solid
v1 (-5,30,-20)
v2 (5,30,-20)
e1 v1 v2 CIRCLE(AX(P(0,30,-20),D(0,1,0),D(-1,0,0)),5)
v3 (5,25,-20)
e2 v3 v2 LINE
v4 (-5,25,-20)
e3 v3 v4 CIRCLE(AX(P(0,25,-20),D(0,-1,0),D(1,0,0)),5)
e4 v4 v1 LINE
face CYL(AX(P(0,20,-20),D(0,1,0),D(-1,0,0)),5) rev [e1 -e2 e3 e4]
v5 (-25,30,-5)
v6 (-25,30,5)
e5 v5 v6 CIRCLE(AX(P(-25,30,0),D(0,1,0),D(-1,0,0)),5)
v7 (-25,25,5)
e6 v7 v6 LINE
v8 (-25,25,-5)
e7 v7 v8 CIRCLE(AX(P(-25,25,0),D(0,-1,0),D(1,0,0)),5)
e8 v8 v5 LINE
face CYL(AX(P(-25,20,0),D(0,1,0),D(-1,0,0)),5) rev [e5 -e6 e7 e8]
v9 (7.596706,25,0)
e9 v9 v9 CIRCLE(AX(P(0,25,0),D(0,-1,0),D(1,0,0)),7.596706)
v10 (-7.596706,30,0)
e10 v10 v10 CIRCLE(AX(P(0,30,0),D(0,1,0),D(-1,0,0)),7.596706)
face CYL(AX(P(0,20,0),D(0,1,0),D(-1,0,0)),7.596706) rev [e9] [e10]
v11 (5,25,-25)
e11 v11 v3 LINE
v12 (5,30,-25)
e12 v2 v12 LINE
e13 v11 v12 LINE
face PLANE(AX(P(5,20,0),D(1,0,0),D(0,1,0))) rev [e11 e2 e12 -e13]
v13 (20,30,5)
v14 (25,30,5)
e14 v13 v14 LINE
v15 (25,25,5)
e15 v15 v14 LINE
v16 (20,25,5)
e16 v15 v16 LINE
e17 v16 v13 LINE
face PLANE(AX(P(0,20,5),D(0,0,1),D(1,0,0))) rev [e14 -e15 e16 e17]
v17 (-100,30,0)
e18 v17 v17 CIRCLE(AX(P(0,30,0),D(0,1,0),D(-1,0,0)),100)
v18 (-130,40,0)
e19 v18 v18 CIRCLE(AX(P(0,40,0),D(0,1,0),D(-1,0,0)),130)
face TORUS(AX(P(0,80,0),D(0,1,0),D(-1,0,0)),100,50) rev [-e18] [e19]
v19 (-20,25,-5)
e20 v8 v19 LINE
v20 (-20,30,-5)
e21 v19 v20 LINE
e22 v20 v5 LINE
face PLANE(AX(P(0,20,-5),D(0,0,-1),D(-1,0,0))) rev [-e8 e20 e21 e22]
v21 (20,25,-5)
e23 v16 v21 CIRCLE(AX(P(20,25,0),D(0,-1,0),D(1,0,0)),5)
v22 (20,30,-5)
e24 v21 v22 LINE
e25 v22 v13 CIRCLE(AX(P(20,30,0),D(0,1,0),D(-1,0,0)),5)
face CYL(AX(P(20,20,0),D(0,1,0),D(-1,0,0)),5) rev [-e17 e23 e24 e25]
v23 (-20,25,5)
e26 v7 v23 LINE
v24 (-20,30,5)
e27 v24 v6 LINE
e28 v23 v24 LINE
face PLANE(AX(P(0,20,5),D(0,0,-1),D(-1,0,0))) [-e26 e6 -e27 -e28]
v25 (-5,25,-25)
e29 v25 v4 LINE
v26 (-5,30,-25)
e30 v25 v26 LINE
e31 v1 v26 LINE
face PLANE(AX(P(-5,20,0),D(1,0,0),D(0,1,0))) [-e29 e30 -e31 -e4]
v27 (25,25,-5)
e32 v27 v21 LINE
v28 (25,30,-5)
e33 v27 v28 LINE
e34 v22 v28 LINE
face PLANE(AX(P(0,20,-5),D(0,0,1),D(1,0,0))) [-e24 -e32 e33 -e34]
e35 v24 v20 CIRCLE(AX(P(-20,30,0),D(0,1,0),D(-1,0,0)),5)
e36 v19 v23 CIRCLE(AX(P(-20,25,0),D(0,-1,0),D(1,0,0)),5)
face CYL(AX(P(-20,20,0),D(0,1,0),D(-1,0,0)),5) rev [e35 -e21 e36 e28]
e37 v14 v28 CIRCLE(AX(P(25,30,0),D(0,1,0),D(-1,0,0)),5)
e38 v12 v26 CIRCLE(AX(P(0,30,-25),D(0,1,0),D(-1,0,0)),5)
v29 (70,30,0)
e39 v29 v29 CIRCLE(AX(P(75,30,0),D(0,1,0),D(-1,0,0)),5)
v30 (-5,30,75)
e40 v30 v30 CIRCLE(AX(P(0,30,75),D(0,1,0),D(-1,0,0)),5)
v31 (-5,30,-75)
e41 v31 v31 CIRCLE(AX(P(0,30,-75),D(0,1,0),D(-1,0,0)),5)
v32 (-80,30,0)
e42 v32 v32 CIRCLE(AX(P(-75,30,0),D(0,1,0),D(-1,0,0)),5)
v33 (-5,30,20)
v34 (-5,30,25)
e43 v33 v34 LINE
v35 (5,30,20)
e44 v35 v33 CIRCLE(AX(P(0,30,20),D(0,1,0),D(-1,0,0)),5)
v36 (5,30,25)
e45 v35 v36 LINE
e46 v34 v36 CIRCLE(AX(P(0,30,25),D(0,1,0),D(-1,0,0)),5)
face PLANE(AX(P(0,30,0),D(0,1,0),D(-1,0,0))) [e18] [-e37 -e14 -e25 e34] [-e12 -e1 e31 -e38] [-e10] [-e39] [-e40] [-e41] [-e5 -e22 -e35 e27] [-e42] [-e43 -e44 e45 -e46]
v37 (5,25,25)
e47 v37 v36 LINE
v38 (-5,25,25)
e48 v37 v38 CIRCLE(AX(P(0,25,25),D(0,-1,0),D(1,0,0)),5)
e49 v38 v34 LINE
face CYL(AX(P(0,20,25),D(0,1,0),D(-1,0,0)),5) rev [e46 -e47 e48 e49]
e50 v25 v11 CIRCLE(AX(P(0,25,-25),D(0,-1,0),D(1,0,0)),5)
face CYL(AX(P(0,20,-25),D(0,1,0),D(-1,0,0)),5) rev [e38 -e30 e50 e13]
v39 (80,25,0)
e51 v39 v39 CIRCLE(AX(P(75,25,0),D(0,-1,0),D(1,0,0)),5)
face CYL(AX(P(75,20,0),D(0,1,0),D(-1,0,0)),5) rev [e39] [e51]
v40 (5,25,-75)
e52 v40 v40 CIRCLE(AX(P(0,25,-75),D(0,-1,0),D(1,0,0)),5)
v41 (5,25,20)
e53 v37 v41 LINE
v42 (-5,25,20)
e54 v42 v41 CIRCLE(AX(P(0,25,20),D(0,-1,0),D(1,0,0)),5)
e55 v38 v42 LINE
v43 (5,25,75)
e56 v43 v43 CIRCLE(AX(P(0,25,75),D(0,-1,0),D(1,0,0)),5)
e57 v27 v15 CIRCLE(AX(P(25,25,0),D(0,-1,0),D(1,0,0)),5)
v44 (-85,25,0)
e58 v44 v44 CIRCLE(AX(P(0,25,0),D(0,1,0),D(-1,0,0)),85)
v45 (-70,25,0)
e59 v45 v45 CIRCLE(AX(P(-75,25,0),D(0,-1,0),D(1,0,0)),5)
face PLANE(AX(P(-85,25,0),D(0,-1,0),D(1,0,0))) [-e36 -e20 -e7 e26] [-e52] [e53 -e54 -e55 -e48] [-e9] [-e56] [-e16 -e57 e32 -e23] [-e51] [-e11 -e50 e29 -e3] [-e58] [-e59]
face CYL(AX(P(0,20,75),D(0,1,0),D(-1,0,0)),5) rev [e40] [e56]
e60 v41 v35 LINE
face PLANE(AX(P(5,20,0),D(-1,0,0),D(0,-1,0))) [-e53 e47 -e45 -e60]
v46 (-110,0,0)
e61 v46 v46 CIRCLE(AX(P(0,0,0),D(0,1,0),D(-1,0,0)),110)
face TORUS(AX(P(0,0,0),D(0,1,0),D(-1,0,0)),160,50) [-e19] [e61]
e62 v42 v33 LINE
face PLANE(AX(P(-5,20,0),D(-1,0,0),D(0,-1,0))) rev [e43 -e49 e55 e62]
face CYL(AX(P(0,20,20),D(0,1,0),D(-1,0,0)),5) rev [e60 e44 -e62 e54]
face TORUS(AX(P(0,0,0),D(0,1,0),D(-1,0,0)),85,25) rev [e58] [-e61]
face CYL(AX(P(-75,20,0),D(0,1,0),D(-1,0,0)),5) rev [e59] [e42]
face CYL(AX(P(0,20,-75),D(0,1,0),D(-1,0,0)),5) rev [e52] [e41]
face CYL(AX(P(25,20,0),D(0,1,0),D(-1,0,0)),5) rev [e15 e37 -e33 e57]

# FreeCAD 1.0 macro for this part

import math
import FreeCAD as App
import Part
import Sketcher
from FreeCAD import Vector
Q = App.Units.Quantity

doc = App.newDocument("Part")
body = doc.addObject("PartDesign::Body", "Body")

# Sketch on XY plane
sketch1 = body.newObject("Sketcher::SketchObject", "Sketch")
sketch1.AttachmentSupport = (doc.getObject("XY_Plane"), [""])
sketch1.MapMode = "FlatFace"
sketch1.addGeometry([
    Part.LineSegment(Vector(-85, 25, 0), Vector(0, 25, 0)),  # 0
    Part.LineSegment(Vector(0, 25, 0), Vector(0, 30, 0)),  # 1
    Part.LineSegment(Vector(0, 30, 0), Vector(-100, 30, 0)),  # 2
    Part.ArcOfCircle(Part.Circle(Vector(-100, 80, 0), Vector(0, 0, 1), 50), math.radians(-127), math.radians(-90)),  # 3
    Part.ArcOfCircle(Part.Circle(Vector(-160, 0, 0), Vector(0, 0, 1), 50), math.radians(53), math.radians(360)),  # 4
    Part.ArcOfCircle(Part.Circle(Vector(-85, 0, 0), Vector(0, 0, 1), 25), math.radians(90), math.radians(180)),  # 5
], False)
sketch1.addConstraint([
    Sketcher.Constraint("Coincident", 0, 2, 1, 1),
    Sketcher.Constraint("Coincident", 1, 2, 2, 1),
    Sketcher.Constraint("Tangent", 2, 2, 3, 2),
    Sketcher.Constraint("Tangent", 3, 1, 4, 1),
    Sketcher.Constraint("Tangent", 4, 2, 5, 2),
    Sketcher.Constraint("Tangent", 5, 1, 0, 1),
    Sketcher.Constraint("Horizontal", 0),
    Sketcher.Constraint("Vertical", 1),
    Sketcher.Constraint("Horizontal", 2),
    Sketcher.Constraint("Equal", 3, 4),
    Sketcher.Constraint("PointOnObject", 4, 3, -1),
    Sketcher.Constraint("PointOnObject", 5, 3, -1),
    Sketcher.Constraint("PointOnObject", 0, 2, -2),
    Sketcher.Constraint("Radius", 3, Q("50 mm")),
    Sketcher.Constraint("Radius", 5, Q("25 mm")),
    Sketcher.Constraint("DistanceX", 0, 1, 0, 2, Q("85 mm")),
    Sketcher.Constraint("DistanceX", 2, 2, 2, 1, Q("100 mm")),
])
revolution = body.newObject("PartDesign::Revolution", "Revolution")
revolution.Profile = sketch1
revolution.ReferenceAxis = (sketch1, ["V_Axis"])
revolution.Angle = 360

# Sketch on XZ plane
sketch2 = body.newObject("Sketcher::SketchObject", "Sketch001")
sketch2.AttachmentSupport = (doc.getObject("XZ_Plane"), [""])
sketch2.MapMode = "FlatFace"
sketch2.AttachmentOffset = App.Placement(Vector(0, 0, -30), App.Rotation())
sketch2.addGeometry([
    Part.Circle(Vector(0, -75, 0), Vector(0, 0, 1), 5),  # 0
    Part.Circle(Vector(0, 0, 0), Vector(0, 0, 1), 8),  # 1
    Part.Circle(Vector(75, 0, 0), Vector(0, 0, 1), 5),  # 2
    Part.Circle(Vector(0, 75, 0), Vector(0, 0, 1), 5),  # 3
    Part.Circle(Vector(-75, 0, 0), Vector(0, 0, 1), 5),  # 4
    Part.LineSegment(Vector(-5, -25, 0), Vector(-5, -20, 0)),  # 5
    Part.ArcOfCircle(Part.Circle(Vector(0, -20, 0), Vector(0, 0, 1), 5), math.radians(0), math.radians(180)),  # 6
    Part.LineSegment(Vector(5, -20, 0), Vector(5, -25, 0)),  # 7
    Part.ArcOfCircle(Part.Circle(Vector(0, -25, 0), Vector(0, 0, 1), 5), math.radians(180), math.radians(360)),  # 8
    Part.LineSegment(Vector(25, -5, 0), Vector(20, -5, 0)),  # 9
    Part.ArcOfCircle(Part.Circle(Vector(20, 0, 0), Vector(0, 0, 1), 5), math.radians(90), math.radians(270)),  # 10
    Part.LineSegment(Vector(20, 5, 0), Vector(25, 5, 0)),  # 11
    Part.ArcOfCircle(Part.Circle(Vector(25, 0, 0), Vector(0, 0, 1), 5), math.radians(-90), math.radians(90)),  # 12
    Part.LineSegment(Vector(5, 25, 0), Vector(5, 20, 0)),  # 13
    Part.ArcOfCircle(Part.Circle(Vector(0, 20, 0), Vector(0, 0, 1), 5), math.radians(180), math.radians(360)),  # 14
    Part.LineSegment(Vector(-5, 20, 0), Vector(-5, 25, 0)),  # 15
    Part.ArcOfCircle(Part.Circle(Vector(0, 25, 0), Vector(0, 0, 1), 5), math.radians(0), math.radians(180)),  # 16
    Part.LineSegment(Vector(-25, 5, 0), Vector(-20, 5, 0)),  # 17
    Part.ArcOfCircle(Part.Circle(Vector(-20, 0, 0), Vector(0, 0, 1), 5), math.radians(-90), math.radians(90)),  # 18
    Part.LineSegment(Vector(-20, -5, 0), Vector(-25, -5, 0)),  # 19
    Part.ArcOfCircle(Part.Circle(Vector(-25, 0, 0), Vector(0, 0, 1), 5), math.radians(90), math.radians(270)),  # 20
], False)
sketch2.addConstraint([
    Sketcher.Constraint("Tangent", 5, 2, 6, 2),
    Sketcher.Constraint("Tangent", 6, 1, 7, 1),
    Sketcher.Constraint("Tangent", 7, 2, 8, 2),
    Sketcher.Constraint("Tangent", 8, 1, 5, 1),
    Sketcher.Constraint("Tangent", 9, 2, 10, 2),
    Sketcher.Constraint("Tangent", 10, 1, 11, 1),
    Sketcher.Constraint("Tangent", 11, 2, 12, 2),
    Sketcher.Constraint("Tangent", 12, 1, 9, 1),
    Sketcher.Constraint("Tangent", 13, 2, 14, 2),
    Sketcher.Constraint("Tangent", 14, 1, 15, 1),
    Sketcher.Constraint("Tangent", 15, 2, 16, 2),
    Sketcher.Constraint("Tangent", 16, 1, 13, 1),
    Sketcher.Constraint("Tangent", 17, 2, 18, 2),
    Sketcher.Constraint("Tangent", 18, 1, 19, 1),
    Sketcher.Constraint("Tangent", 19, 2, 20, 2),
    Sketcher.Constraint("Tangent", 20, 1, 17, 1),
    Sketcher.Constraint("Vertical", 5),
    Sketcher.Constraint("Vertical", 7),
    Sketcher.Constraint("Horizontal", 9),
    Sketcher.Constraint("Horizontal", 11),
    Sketcher.Constraint("Vertical", 13),
    Sketcher.Constraint("Vertical", 15),
    Sketcher.Constraint("Horizontal", 17),
    Sketcher.Constraint("Horizontal", 19),
    Sketcher.Constraint("Coincident", 1, 3, -1, 1),
    Sketcher.Constraint("Equal", 0, 2),
    Sketcher.Constraint("Equal", 2, 3),
    Sketcher.Constraint("Equal", 3, 4),
    Sketcher.Constraint("Equal", 4, 6),
    Sketcher.Constraint("Equal", 8, 10),
    Sketcher.Constraint("Equal", 12, 14),
    Sketcher.Constraint("Equal", 16, 18),
    Sketcher.Constraint("Symmetric", 0, 3, 3, 3, -1, 1),
    Sketcher.Constraint("Symmetric", 2, 3, 4, 3, -1, 1),
    Sketcher.Constraint("Symmetric", 6, 3, 14, 3, -1, 1),
    Sketcher.Constraint("Symmetric", 10, 3, 18, 3, -1, 1),
    Sketcher.Constraint("Symmetric", 12, 3, 20, 3, -2),
    Sketcher.Constraint("Symmetric", 8, 3, 16, 3, -1),
    Sketcher.Constraint("PointOnObject", 0, 3, -2),
    Sketcher.Constraint("PointOnObject", 2, 3, -1),
    Sketcher.Constraint("Equal", 19, 5),
    Sketcher.Constraint("Diameter", 0, Q("10 mm")),
    Sketcher.Constraint("DistanceX", 9, 2, 9, 1, Q("5 mm")),
    Sketcher.Constraint("DistanceY", 0, 3, -1, 1, Q("75 mm")),
    Sketcher.Constraint("DistanceX", -1, 1, 2, 3, Q("75 mm")),
    Sketcher.Constraint("DistanceY", 6, 3, -1, 1, Q("20 mm")),
    Sketcher.Constraint("DistanceX", -1, 1, 10, 3, Q("20 mm")),
    Sketcher.Constraint("Diameter", 1, Q("15.193412 mm")),
])
pocket1 = body.newObject("PartDesign::Pocket", "Pocket")
pocket1.Profile = sketch2
pocket1.Length = 10
pocket1.Reversed = True

doc.recompute()
